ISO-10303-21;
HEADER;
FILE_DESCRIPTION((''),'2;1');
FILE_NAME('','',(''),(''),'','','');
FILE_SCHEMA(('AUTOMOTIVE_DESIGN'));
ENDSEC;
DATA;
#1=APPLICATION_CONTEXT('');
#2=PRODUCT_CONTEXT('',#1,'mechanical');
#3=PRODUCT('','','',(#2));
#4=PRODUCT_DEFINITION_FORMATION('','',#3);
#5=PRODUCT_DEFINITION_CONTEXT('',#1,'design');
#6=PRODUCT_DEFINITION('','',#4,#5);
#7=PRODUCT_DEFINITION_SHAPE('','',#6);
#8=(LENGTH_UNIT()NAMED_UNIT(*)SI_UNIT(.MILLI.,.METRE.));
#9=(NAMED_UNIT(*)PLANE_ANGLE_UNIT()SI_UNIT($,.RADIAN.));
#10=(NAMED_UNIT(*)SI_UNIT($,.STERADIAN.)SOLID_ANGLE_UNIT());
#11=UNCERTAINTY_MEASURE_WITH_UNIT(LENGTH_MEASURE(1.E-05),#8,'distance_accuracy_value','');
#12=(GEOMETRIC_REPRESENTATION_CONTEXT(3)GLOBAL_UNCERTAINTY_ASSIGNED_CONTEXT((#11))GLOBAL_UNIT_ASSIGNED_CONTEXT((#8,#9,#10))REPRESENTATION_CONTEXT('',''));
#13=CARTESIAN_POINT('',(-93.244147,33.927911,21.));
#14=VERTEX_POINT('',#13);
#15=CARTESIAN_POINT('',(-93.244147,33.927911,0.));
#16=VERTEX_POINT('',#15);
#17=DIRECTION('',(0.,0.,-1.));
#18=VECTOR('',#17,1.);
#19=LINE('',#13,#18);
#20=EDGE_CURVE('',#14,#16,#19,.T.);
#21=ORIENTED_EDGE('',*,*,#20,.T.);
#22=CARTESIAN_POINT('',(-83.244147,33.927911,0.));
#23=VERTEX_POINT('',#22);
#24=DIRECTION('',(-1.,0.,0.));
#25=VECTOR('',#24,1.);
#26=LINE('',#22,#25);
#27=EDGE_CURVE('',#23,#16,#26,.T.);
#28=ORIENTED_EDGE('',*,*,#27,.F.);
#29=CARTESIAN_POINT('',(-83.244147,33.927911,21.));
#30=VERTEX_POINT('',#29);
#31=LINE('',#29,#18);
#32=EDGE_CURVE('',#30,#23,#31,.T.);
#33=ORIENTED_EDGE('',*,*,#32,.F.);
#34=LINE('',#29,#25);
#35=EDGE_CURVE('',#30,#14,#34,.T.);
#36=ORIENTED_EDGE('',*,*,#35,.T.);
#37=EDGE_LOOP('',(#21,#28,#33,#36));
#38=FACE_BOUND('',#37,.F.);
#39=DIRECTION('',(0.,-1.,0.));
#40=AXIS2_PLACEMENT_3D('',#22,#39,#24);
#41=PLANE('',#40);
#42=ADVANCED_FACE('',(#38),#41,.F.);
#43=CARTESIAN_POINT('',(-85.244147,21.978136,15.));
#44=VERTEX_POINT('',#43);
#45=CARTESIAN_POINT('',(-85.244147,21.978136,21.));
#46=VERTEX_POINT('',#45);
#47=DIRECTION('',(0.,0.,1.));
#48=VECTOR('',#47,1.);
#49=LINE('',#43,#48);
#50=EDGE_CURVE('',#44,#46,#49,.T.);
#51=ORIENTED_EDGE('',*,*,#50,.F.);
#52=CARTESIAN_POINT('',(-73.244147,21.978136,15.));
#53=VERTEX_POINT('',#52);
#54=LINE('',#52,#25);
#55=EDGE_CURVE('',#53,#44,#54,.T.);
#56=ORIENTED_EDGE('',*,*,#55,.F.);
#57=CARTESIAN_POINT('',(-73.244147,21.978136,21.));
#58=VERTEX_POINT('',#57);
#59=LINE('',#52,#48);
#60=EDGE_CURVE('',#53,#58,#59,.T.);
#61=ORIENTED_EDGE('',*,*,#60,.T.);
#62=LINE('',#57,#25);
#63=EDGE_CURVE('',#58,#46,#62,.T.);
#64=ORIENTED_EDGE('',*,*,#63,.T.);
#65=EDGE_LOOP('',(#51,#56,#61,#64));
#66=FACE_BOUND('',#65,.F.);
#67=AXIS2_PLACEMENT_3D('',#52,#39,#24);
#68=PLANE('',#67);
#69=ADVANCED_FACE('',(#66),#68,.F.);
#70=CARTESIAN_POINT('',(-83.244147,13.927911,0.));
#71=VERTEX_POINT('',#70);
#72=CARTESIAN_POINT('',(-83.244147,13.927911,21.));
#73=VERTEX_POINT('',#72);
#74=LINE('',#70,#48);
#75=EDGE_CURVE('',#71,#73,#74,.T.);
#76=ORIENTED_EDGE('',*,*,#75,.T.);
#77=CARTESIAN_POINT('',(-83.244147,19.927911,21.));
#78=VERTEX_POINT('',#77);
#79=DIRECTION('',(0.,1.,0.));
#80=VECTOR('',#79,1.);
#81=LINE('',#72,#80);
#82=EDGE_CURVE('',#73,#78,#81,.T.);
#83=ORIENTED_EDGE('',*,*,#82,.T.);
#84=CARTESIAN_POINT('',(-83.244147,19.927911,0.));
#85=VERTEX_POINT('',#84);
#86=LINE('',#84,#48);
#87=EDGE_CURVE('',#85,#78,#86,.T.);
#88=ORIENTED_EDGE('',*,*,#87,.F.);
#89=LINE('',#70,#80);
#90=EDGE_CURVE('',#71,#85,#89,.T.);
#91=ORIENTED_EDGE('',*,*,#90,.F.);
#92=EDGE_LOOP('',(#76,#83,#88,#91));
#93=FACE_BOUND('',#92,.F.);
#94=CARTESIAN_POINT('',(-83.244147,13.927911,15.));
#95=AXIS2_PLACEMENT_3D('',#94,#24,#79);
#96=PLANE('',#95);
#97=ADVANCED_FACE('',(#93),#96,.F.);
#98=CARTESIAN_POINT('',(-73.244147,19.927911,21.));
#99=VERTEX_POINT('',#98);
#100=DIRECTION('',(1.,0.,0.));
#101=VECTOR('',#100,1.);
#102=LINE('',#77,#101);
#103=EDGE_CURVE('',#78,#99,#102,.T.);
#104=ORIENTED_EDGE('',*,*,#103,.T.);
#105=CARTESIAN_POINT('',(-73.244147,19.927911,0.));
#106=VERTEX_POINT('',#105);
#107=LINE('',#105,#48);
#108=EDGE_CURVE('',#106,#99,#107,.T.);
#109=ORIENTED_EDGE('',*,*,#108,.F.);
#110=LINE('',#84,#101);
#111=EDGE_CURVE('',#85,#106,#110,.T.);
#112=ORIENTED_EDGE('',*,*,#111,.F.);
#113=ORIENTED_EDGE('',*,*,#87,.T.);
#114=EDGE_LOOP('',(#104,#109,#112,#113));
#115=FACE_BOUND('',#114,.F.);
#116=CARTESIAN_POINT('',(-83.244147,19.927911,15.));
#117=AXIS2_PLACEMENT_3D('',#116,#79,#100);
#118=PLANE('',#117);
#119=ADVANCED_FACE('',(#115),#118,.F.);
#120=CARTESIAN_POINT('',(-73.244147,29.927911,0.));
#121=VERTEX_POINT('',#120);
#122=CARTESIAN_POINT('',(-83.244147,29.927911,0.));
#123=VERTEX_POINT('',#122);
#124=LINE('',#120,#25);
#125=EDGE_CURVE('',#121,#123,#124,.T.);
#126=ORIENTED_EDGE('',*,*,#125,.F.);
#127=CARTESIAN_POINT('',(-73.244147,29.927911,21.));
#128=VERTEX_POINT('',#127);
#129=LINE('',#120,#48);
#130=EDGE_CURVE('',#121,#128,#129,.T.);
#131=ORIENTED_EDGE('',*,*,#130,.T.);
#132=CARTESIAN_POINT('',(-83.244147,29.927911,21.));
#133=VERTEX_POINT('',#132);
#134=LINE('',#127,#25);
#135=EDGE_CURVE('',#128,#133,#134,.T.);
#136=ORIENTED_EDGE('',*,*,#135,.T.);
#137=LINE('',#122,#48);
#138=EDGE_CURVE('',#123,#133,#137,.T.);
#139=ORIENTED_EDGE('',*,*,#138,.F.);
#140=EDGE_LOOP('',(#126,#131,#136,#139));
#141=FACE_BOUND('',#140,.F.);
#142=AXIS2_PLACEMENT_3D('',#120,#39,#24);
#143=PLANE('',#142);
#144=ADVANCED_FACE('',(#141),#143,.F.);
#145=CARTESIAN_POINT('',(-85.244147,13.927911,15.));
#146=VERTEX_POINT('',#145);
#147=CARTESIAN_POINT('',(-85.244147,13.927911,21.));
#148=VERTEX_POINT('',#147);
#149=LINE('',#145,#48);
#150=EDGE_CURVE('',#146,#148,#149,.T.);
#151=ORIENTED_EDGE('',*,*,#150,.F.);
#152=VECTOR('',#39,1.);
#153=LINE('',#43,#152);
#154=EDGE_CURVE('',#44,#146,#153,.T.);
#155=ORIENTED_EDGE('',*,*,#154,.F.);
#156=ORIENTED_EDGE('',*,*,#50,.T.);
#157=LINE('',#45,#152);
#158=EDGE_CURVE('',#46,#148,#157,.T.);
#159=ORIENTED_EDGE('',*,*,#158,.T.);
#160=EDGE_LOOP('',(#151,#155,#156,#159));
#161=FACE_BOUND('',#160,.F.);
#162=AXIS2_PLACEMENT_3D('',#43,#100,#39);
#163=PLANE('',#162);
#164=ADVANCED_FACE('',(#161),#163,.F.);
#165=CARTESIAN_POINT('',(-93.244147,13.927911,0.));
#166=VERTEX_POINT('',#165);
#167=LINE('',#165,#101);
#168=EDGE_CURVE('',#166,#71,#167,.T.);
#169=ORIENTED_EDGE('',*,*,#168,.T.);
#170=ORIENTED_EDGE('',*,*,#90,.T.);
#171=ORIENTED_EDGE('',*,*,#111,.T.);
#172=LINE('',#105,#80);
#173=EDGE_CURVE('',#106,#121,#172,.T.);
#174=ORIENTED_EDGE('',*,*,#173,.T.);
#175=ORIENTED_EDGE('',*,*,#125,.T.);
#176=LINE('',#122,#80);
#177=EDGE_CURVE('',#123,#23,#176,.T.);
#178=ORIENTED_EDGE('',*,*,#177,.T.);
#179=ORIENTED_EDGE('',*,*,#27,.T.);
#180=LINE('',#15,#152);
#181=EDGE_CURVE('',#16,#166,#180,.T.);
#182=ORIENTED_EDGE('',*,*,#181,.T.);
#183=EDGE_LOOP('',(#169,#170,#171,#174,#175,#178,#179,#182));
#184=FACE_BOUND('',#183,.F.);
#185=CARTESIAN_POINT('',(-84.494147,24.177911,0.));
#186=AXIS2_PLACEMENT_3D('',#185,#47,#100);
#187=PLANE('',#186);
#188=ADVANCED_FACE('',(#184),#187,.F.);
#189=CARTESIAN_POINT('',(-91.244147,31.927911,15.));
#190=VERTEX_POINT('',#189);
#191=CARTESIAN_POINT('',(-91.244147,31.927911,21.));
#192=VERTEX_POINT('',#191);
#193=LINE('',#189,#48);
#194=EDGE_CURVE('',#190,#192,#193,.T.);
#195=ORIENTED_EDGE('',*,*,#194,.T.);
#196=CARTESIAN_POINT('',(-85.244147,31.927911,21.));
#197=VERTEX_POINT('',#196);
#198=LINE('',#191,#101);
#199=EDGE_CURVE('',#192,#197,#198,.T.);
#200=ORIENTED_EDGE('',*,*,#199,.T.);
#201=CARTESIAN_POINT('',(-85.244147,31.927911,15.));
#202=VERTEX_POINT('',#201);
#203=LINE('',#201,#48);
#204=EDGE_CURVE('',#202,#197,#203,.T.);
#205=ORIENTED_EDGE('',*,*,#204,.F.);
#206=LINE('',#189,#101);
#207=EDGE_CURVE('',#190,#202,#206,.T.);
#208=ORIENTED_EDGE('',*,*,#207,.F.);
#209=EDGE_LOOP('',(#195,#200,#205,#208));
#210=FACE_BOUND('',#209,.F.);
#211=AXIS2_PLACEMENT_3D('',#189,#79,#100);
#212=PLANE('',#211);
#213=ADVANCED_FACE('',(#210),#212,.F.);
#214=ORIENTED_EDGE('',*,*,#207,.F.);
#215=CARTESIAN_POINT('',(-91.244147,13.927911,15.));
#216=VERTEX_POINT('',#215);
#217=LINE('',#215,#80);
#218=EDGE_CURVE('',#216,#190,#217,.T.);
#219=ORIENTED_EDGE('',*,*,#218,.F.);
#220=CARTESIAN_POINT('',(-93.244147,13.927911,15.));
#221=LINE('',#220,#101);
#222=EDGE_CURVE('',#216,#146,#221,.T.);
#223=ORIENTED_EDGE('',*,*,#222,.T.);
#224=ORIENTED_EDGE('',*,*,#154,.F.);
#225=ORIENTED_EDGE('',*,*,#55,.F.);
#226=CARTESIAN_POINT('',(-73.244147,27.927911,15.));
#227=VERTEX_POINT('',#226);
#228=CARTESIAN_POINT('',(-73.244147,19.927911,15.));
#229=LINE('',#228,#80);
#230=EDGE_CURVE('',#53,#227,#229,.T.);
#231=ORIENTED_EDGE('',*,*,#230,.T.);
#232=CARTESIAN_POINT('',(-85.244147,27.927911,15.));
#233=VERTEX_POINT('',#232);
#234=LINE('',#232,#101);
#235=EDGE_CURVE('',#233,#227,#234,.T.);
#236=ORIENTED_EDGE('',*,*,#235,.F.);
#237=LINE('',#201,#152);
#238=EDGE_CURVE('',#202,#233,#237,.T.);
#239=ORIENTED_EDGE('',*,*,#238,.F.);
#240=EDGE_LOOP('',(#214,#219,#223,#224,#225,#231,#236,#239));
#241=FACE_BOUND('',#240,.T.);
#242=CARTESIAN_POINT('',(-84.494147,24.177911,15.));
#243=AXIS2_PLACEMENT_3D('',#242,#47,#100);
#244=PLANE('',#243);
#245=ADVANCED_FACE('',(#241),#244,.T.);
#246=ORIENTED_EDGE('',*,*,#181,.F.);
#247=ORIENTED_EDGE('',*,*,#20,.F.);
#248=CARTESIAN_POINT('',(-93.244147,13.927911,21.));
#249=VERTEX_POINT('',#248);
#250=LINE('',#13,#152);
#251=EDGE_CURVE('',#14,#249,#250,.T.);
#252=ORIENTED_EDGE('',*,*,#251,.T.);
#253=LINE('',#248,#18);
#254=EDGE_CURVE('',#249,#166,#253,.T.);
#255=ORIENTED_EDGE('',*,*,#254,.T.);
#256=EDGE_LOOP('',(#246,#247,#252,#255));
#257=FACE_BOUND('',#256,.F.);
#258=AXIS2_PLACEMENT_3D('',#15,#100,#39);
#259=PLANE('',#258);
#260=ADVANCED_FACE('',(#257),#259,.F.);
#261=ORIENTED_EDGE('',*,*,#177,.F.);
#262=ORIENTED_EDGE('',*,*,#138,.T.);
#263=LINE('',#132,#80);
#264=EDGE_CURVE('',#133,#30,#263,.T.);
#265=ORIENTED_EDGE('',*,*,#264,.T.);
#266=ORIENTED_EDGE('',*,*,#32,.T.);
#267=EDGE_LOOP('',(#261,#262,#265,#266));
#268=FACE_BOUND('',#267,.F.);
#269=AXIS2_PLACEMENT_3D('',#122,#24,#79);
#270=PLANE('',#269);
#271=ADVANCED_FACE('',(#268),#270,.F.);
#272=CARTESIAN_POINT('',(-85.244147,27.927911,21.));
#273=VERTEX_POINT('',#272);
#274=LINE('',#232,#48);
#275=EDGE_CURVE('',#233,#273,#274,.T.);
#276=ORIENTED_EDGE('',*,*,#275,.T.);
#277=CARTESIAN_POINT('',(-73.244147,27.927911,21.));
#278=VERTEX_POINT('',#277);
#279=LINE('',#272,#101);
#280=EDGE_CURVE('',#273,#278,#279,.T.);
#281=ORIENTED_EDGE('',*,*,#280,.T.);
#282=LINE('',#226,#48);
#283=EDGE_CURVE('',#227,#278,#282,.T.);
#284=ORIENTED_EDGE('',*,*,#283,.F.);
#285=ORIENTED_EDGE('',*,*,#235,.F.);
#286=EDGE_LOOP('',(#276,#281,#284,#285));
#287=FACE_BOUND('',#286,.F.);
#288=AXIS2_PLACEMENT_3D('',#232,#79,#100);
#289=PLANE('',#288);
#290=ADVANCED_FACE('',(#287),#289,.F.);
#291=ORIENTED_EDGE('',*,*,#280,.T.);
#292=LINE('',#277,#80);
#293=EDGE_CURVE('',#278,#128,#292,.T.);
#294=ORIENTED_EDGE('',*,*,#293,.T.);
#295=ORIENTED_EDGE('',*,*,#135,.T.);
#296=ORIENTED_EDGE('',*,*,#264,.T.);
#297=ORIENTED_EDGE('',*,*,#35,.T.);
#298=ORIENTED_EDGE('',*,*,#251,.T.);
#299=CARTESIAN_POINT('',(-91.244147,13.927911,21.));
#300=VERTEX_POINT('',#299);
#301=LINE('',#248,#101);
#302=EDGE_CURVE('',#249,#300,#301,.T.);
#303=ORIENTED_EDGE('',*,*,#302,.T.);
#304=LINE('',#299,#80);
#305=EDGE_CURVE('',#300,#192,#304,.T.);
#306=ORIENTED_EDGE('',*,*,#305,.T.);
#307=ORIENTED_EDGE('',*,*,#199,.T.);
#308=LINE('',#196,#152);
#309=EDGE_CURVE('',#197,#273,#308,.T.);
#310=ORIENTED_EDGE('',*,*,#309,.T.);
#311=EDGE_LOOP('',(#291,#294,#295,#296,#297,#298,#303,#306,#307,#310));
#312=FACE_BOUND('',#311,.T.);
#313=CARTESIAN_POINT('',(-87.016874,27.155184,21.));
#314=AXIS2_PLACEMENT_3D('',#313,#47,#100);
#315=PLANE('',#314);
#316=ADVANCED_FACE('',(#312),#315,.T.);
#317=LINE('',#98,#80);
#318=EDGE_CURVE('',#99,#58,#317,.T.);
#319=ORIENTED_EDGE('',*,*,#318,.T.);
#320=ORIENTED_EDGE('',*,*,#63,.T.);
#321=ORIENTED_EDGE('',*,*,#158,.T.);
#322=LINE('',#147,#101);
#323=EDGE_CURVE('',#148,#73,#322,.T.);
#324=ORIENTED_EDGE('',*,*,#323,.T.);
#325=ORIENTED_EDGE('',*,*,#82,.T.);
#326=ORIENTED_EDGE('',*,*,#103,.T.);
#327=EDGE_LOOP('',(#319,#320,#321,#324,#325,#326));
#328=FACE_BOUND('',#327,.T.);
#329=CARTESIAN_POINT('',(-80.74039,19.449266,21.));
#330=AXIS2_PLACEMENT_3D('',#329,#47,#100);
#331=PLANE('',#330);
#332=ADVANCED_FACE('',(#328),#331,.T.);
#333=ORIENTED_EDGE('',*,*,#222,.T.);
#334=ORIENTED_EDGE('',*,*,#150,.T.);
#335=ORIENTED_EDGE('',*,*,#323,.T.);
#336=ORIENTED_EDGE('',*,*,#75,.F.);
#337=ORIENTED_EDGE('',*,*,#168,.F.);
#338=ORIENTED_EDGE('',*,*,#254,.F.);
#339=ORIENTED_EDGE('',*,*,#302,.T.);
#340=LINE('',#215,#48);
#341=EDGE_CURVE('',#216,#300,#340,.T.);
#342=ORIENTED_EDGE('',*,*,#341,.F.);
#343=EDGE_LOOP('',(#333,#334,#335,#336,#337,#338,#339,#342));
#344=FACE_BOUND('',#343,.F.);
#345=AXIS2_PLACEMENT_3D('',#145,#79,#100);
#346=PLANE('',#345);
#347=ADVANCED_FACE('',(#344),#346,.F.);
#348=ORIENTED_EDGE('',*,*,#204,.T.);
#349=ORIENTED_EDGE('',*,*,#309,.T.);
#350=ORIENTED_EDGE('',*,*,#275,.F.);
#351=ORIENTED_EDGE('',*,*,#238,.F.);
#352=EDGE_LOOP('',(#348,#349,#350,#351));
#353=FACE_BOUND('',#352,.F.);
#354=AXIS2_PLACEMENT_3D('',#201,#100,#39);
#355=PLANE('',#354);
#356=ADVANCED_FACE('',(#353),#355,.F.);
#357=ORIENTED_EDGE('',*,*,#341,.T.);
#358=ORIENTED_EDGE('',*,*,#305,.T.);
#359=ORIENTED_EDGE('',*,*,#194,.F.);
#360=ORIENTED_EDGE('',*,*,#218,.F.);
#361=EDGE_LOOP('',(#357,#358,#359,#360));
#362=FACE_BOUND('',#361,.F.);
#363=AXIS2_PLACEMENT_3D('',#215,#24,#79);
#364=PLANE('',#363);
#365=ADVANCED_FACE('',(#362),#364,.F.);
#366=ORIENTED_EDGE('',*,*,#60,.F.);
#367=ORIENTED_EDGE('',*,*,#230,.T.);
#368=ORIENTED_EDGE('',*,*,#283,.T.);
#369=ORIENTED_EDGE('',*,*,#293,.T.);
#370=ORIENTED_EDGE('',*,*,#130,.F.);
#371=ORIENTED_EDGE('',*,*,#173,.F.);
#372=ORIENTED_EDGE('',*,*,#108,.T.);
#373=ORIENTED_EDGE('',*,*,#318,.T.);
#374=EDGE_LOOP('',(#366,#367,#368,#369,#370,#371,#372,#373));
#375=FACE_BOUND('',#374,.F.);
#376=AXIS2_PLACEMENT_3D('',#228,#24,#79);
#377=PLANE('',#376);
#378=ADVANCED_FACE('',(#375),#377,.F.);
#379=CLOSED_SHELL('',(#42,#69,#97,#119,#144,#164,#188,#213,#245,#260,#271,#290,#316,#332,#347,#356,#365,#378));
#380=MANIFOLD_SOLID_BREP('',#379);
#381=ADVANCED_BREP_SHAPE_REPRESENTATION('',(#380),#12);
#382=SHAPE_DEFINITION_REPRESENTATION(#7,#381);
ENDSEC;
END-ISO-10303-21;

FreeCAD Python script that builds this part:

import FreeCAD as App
import Part
import Sketcher

V = App.Vector


def add_polygon(sketch, points):
    """Adds a closed chain of lines whose ends are joined by coincident constraints."""
    first, n = sketch.GeometryCount, len(points)
    for a, b in zip(points, points[1:] + points[:1]):
        sketch.addGeometry(Part.LineSegment(App.Vector(*a, 0), App.Vector(*b, 0)), False)
    for i in range(n):
        sketch.addConstraint(Sketcher.Constraint("Coincident", first + i, 2, first + (i + 1) % n, 1))

doc = App.newDocument("Part")
body = doc.addObject("PartDesign::Body", "Body")

# Sketch on XY plane
sketch1 = body.newObject("Sketcher::SketchObject", "Sketch")
sketch1.AttachmentSupport = (doc.getObject("XY_Plane"), [""])
sketch1.MapMode = "FlatFace"
add_polygon(sketch1, [(-93.2, 33.9), (-93.2, 13.9), (-83.2, 13.9), (-83.2, 19.9), (-73.2, 19.9), (-73.2, 29.9), (-83.2, 29.9), (-83.2, 33.9)])  # lines 0-7
sketch1.addConstraint(Sketcher.Constraint("Vertical", 0))
sketch1.addConstraint(Sketcher.Constraint("Horizontal", 1))
sketch1.addConstraint(Sketcher.Constraint("Vertical", 2))
sketch1.addConstraint(Sketcher.Constraint("Horizontal", 3))
sketch1.addConstraint(Sketcher.Constraint("Vertical", 4))
sketch1.addConstraint(Sketcher.Constraint("Horizontal", 5))
sketch1.addConstraint(Sketcher.Constraint("Vertical", 6))
sketch1.addConstraint(Sketcher.Constraint("Horizontal", 7))
sketch1.addConstraint(Sketcher.Constraint("Vertical", 2, 2, 5, 2))
sketch1.addConstraint(Sketcher.Constraint("Equal", 1, 3))
sketch1.addConstraint(Sketcher.Constraint("Equal", 7, 4))
sketch1.addConstraint(Sketcher.Constraint("DistanceX", 1, 1, 1, 2, 10.0))
sketch1.addConstraint(Sketcher.Constraint("DistanceY", 0, 2, 0, 1, 20.0))
sketch1.addConstraint(Sketcher.Constraint("DistanceY", 2, 1, 2, 2, 6.0))
sketch1.addConstraint(Sketcher.Constraint("DistanceY", -1, 1, 0, 2, 13.927911))
sketch1.addConstraint(Sketcher.Constraint("DistanceX", 0, 2, -1, 1, 93.244147))
pad1 = body.newObject("PartDesign::Pad", "Pad")
pad1.Profile = sketch1
pad1.Length = 15

# Sketch on XY plane
sketch2 = body.newObject("Sketcher::SketchObject", "Sketch001")
sketch2.AttachmentSupport = (doc.getObject("XY_Plane"), [""])
sketch2.MapMode = "FlatFace"
sketch2.AttachmentOffset = App.Placement(V(0, 0, 15), App.Rotation())
add_polygon(sketch2, [(-85.2, 13.9), (-83.2, 13.9), (-83.2, 19.9), (-73.2, 19.9), (-73.2, 22), (-85.2, 22)])  # lines 0-5
add_polygon(sketch2, [(-93.2, 33.9), (-93.2, 13.9), (-91.2, 13.9), (-91.2, 31.9), (-85.2, 31.9), (-85.2, 27.9), (-73.2, 27.9), (-73.2, 29.9), (-83.2, 29.9), (-83.2, 33.9)])  # lines 6-15
sketch2.addConstraint(Sketcher.Constraint("Horizontal", 0))
sketch2.addConstraint(Sketcher.Constraint("Vertical", 1))
sketch2.addConstraint(Sketcher.Constraint("Horizontal", 2))
sketch2.addConstraint(Sketcher.Constraint("Vertical", 3))
sketch2.addConstraint(Sketcher.Constraint("Horizontal", 4))
sketch2.addConstraint(Sketcher.Constraint("Vertical", 5))
sketch2.addConstraint(Sketcher.Constraint("Vertical", 6))
sketch2.addConstraint(Sketcher.Constraint("Horizontal", 7))
sketch2.addConstraint(Sketcher.Constraint("Vertical", 8))
sketch2.addConstraint(Sketcher.Constraint("Horizontal", 9))
sketch2.addConstraint(Sketcher.Constraint("Vertical", 10))
sketch2.addConstraint(Sketcher.Constraint("Horizontal", 11))
sketch2.addConstraint(Sketcher.Constraint("Vertical", 12))
sketch2.addConstraint(Sketcher.Constraint("Horizontal", 13))
sketch2.addConstraint(Sketcher.Constraint("Vertical", 14))
sketch2.addConstraint(Sketcher.Constraint("Horizontal", 15))
sketch2.addConstraint(Sketcher.Constraint("Horizontal", 5, 2, 6, 2))
sketch2.addConstraint(Sketcher.Constraint("Vertical", 5, 2, 9, 2))
sketch2.addConstraint(Sketcher.Constraint("Vertical", 3, 2, 11, 2))
sketch2.addConstraint(Sketcher.Constraint("Vertical", 1, 2, 13, 2))
sketch2.addConstraint(Sketcher.Constraint("Equal", 0, 7))
sketch2.addConstraint(Sketcher.Constraint("Equal", 13, 15))
sketch2.addConstraint(Sketcher.Constraint("Equal", 9, 1))
sketch2.addConstraint(Sketcher.Constraint("Equal", 7, 12))
sketch2.addConstraint(Sketcher.Constraint("Equal", 10, 14))
sketch2.addConstraint(Sketcher.Constraint("DistanceX", 0, 1, 0, 2, 2.0))
sketch2.addConstraint(Sketcher.Constraint("DistanceX", 2, 1, 2, 2, 10.0))
sketch2.addConstraint(Sketcher.Constraint("DistanceY", 6, 2, 6, 1, 20.0))
sketch2.addConstraint(Sketcher.Constraint("DistanceY", 10, 2, 10, 1, 4.0))
sketch2.addConstraint(Sketcher.Constraint("DistanceY", 3, 1, 3, 2, 2.050225))
sketch2.addConstraint(Sketcher.Constraint("DistanceY", -1, 1, 0, 2, 13.927911))
sketch2.addConstraint(Sketcher.Constraint("DistanceX", 0, 2, -1, 1, 83.244147))
pad2 = body.newObject("PartDesign::Pad", "Pad001")
pad2.Profile = sketch2
pad2.Length = 6

doc.recompute()
